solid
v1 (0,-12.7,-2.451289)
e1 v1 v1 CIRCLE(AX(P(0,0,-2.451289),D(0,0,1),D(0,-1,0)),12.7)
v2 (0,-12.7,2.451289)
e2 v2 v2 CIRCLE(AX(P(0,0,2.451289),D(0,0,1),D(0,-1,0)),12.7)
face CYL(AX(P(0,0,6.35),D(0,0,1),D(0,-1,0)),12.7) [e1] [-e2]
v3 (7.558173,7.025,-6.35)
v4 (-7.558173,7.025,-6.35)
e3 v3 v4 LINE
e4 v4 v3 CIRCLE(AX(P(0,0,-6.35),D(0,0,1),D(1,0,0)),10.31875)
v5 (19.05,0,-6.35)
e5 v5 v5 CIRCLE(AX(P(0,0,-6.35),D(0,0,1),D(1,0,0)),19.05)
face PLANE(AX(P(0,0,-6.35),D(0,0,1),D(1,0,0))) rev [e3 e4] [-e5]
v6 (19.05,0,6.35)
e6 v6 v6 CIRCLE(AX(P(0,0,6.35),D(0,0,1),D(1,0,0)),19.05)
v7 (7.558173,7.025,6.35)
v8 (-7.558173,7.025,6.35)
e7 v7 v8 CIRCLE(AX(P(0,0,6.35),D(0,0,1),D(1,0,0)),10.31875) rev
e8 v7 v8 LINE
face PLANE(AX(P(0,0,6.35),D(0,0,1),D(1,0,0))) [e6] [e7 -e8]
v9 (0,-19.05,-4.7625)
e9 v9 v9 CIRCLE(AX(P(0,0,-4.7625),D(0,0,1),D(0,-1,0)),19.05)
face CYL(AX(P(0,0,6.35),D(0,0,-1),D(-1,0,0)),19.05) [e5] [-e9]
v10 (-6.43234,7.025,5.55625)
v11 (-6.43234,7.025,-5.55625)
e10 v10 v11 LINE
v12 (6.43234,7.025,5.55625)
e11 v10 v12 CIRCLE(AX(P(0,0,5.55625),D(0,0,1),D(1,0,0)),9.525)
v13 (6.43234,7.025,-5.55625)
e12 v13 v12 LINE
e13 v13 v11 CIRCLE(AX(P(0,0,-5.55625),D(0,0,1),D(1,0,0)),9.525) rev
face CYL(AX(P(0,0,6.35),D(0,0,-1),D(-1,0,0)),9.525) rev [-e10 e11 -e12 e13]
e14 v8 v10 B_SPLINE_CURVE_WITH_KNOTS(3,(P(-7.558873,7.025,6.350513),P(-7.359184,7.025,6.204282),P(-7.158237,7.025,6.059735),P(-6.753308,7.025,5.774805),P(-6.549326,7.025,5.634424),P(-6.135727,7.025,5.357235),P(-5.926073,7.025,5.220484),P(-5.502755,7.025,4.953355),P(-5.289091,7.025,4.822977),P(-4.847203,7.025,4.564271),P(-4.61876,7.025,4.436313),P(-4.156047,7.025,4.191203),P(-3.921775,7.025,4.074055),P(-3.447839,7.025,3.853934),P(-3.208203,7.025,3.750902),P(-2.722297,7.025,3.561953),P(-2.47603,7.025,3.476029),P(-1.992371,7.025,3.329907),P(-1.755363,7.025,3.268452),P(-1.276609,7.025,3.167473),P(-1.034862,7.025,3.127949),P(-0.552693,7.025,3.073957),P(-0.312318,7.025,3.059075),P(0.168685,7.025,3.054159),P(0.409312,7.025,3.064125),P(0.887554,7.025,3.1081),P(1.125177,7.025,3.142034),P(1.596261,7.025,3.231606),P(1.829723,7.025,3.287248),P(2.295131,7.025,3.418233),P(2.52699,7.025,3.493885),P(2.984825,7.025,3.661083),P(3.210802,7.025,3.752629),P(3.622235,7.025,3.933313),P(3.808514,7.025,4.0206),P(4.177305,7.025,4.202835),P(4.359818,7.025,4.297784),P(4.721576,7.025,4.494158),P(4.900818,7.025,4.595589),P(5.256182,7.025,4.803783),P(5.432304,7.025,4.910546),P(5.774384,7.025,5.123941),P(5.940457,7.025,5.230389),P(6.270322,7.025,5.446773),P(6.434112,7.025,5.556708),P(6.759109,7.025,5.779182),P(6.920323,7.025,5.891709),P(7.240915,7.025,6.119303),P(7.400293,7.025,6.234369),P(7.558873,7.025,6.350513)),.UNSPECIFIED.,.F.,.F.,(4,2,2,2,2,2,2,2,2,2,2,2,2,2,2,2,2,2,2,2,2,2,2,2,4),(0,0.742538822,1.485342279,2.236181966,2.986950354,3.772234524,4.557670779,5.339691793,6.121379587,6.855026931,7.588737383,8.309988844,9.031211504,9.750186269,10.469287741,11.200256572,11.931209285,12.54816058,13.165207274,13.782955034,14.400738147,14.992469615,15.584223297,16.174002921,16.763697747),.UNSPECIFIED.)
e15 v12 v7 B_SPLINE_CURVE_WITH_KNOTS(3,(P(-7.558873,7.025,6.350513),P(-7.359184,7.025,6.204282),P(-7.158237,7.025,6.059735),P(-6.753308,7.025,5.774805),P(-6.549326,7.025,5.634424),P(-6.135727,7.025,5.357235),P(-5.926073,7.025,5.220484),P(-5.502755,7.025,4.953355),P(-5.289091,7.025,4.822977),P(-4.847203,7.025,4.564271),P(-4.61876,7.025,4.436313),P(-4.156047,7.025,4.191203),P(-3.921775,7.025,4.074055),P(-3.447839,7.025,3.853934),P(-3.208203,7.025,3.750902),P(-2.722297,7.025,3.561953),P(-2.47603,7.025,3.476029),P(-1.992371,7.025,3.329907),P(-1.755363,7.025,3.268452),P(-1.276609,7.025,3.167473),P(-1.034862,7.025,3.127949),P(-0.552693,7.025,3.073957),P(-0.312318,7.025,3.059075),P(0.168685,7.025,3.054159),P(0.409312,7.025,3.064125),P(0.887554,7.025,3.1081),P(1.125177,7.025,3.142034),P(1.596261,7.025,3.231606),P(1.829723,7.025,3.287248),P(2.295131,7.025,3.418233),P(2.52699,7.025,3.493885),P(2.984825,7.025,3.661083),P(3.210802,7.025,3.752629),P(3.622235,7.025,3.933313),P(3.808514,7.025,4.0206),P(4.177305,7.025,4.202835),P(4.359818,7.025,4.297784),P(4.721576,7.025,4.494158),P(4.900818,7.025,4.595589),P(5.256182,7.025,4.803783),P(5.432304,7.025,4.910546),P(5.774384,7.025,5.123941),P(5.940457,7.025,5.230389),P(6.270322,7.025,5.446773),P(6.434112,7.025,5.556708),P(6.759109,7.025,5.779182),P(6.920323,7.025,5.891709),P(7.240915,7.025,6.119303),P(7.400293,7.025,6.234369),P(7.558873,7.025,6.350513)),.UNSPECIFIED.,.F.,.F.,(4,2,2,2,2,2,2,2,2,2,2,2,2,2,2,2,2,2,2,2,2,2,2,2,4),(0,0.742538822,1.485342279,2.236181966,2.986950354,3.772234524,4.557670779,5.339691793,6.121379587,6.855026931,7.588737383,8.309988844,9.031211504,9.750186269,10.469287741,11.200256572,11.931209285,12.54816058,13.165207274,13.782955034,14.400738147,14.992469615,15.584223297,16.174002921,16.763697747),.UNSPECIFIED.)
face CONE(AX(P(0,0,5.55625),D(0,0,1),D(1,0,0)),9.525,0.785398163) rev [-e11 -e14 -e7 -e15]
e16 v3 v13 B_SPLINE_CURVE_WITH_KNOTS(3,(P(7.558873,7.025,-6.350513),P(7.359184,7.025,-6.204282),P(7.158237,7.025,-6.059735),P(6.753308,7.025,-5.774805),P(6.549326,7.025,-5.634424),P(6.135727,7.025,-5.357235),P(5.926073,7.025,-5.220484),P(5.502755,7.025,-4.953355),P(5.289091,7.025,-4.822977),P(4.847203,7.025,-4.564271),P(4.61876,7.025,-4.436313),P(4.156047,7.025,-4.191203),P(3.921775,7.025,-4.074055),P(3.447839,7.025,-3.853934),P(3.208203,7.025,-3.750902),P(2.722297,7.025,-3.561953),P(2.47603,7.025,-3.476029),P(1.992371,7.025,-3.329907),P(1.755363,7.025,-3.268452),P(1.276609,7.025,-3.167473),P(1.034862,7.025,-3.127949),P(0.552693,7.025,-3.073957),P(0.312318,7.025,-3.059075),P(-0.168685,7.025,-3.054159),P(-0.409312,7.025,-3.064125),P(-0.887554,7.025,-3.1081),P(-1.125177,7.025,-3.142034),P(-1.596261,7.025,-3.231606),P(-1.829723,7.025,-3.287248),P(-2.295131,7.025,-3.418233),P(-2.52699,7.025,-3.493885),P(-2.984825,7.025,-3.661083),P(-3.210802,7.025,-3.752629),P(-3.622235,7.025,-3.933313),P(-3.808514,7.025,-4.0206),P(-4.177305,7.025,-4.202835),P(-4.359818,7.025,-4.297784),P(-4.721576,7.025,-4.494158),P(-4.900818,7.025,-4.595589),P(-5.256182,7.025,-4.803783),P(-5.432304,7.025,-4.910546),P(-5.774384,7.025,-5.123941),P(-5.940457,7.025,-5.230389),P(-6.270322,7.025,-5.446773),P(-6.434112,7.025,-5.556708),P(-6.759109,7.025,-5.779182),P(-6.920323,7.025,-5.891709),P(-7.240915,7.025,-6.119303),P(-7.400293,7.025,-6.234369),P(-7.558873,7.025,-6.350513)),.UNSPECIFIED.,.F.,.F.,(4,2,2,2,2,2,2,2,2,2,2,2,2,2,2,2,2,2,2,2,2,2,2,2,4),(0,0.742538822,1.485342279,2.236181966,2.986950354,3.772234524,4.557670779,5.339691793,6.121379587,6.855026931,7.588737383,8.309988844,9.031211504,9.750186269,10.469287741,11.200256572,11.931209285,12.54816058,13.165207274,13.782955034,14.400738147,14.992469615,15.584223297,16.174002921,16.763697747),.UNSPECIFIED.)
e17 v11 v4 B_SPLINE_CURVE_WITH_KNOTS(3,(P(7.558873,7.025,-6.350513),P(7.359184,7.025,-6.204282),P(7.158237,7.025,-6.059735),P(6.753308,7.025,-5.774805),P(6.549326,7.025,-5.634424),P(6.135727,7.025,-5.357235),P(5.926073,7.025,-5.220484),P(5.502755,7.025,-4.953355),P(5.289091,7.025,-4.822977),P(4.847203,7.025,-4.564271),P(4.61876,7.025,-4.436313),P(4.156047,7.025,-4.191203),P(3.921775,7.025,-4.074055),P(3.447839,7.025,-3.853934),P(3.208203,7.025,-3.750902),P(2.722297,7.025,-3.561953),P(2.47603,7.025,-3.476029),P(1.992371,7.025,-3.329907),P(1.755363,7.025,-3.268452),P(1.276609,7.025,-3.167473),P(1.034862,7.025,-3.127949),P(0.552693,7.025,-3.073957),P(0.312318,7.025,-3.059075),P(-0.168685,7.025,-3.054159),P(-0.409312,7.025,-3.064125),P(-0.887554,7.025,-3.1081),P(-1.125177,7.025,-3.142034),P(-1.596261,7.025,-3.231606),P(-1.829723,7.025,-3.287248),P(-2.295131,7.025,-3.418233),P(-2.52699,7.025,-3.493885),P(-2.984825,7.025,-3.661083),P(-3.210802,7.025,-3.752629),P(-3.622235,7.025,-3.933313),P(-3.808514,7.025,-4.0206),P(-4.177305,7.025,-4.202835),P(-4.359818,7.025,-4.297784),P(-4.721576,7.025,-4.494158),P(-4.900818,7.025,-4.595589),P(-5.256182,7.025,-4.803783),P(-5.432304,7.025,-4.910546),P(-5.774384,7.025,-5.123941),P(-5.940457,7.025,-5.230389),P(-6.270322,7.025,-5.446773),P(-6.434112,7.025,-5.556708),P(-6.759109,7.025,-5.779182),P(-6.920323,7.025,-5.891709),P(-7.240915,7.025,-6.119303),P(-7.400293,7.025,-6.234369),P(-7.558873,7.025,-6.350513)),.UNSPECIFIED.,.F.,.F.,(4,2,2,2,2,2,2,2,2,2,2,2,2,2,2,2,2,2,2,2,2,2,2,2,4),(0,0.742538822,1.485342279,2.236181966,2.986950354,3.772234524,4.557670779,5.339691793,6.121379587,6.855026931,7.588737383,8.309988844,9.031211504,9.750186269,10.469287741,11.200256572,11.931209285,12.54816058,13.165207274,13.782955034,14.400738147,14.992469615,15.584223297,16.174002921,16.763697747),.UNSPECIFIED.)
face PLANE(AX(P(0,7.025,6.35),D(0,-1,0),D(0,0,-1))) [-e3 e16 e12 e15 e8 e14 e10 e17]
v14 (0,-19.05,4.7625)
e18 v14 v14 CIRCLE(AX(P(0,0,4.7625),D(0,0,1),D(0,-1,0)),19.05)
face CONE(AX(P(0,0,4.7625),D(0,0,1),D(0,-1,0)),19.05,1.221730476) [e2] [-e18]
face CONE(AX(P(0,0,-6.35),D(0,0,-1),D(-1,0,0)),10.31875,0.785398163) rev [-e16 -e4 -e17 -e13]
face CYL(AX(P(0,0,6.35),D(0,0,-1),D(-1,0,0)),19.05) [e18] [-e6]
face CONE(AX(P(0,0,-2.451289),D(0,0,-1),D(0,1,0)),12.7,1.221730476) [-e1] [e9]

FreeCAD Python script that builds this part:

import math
import FreeCAD as App
import Part
import Sketcher
from FreeCAD import Vector
Q = App.Units.Quantity


def edges_at(feature, points):
    """Names of the edges that pass closest to the given points."""
    edges = feature.Shape.Edges
    near = lambda p: min(range(len(edges)), key=lambda i: edges[i].distToShape(Part.Vertex(*p))[0])
    return sorted({f"Edge{near(p) + 1}" for p in points})

doc = App.newDocument("Part")
body = doc.addObject("PartDesign::Body", "Body")

# Sketch on XY plane
sketch1 = body.newObject("Sketcher::SketchObject", "Sketch")
sketch1.AttachmentSupport = (doc.getObject("XY_Plane"), [""])
sketch1.MapMode = "FlatFace"
sketch1.addGeometry(Part.Circle(Vector(0, 0, 0), Vector(0, 0, 1), 19.05), False)
sketch1.addGeometry(Part.Circle(Vector(0, 0, 0), Vector(0, 0, 1), 9.525), False)
sketch1.addConstraint(Sketcher.Constraint("Coincident", 0, 3, -1, 1))
sketch1.addConstraint(Sketcher.Constraint("Coincident", 1, 3, -1, 1))
sketch1.addConstraint(Sketcher.Constraint("Diameter", 0, Q("1.5 in")))
sketch1.addConstraint(Sketcher.Constraint("Diameter", 1, Q("0.75 in")))
pad1 = body.newObject("PartDesign::Pad", "Pad")
pad1.Profile = sketch1
pad1.Length = Q("0.5 in")
pad1.Midplane = True
doc.recompute()

chamfer = body.newObject("PartDesign::Chamfer", "Chamfer")
chamfer.Base = (pad1, edges_at(pad1, [(-9.525, 0, -6.35), (-9.525, 0, 6.35)]))
chamfer.Size = Q("0.03125 in")

# Sketch on YZ plane
sketch2 = body.newObject("Sketcher::SketchObject", "Sketch001")
sketch2.AttachmentSupport = (doc.getObject("YZ_Plane"), [""])
sketch2.MapMode = "FlatFace"
sketch2.addGeometry(Part.LineSegment(Vector(19.05, -4.7625, 0), Vector(19.05, 4.7625, 0)), False)
sketch2.addGeometry(Part.LineSegment(Vector(19.05, 4.7625, 0), Vector(12.7, 2.451289, 0)), False)
sketch2.addGeometry(Part.LineSegment(Vector(12.7, 2.451289, 0), Vector(12.7, -2.451289, 0)), False)
sketch2.addGeometry(Part.LineSegment(Vector(12.7, -2.451289, 0), Vector(19.05, -4.7625, 0)), False)
sketch2.addConstraint(Sketcher.Constraint("Coincident", 0, 2, 1, 1))
sketch2.addConstraint(Sketcher.Constraint("Coincident", 1, 2, 2, 1))
sketch2.addConstraint(Sketcher.Constraint("Coincident", 2, 2, 3, 1))
sketch2.addConstraint(Sketcher.Constraint("Coincident", 3, 2, 0, 1))
sketch2.addConstraint(Sketcher.Constraint("Vertical", 0))
sketch2.addConstraint(Sketcher.Constraint("Vertical", 2))
sketch2.addConstraint(Sketcher.Constraint("Equal", 1, 3))
sketch2.addConstraint(Sketcher.Constraint("Angle", 1, Q("-160 deg")))
sketch2.addConstraint(Sketcher.Constraint("DistanceX", -1, 1, 1, 2, Q("0.5 in")))
sketch2.addConstraint(Sketcher.Constraint("DistanceY", 0, 1, 0, 2, Q("0.375 in")))
sketch2.addConstraint(Sketcher.Constraint("DistanceX", -1, 1, 0, 2, Q("0.75 in")))
sketch2.addConstraint(Sketcher.Constraint("DistanceY", -1, 1, 0, 2, Q("0.1875 in")))
groove = body.newObject("PartDesign::Groove", "Groove")
groove.Profile = sketch2
groove.ReferenceAxis = (sketch2, ["V_Axis"])
groove.Angle = 360

# Sketch on XY plane
sketch3 = body.newObject("Sketcher::SketchObject", "Sketch002")
sketch3.AttachmentSupport = (doc.getObject("XY_Plane"), [""])
sketch3.MapMode = "FlatFace"
sketch3.AttachmentOffset = App.Placement(Vector(0, 0, -0.25 * 25.4), App.Rotation())
sketch3.addGeometry(Part.ArcOfCircle(Part.Circle(Vector(0, 0, 0), Vector(0, 0, 1), 10.31875), math.radians(42.906152), math.radians(137.093848)), False)
sketch3.addGeometry(Part.LineSegment(Vector(7.558173, 7.025, 0), Vector(-7.558173, 7.025, 0)), False)
sketch3.addConstraint(Sketcher.Constraint("Coincident", 0, 1, 1, 1))
sketch3.addConstraint(Sketcher.Constraint("Coincident", 1, 2, 0, 2))
sketch3.addConstraint(Sketcher.Constraint("Horizontal", 1))
sketch3.addConstraint(Sketcher.Constraint("Coincident", 0, 3, -1, 1))
sketch3.addConstraint(Sketcher.Constraint("Radius", 0, Q("0.40625 in")))
sketch3.addConstraint(Sketcher.Constraint("DistanceY", -1, 1, 0, 1, Q("7.025 mm")))
pad2 = body.newObject("PartDesign::Pad", "Pad001")
pad2.Profile = sketch3
pad2.Length = Q("0.5 in")

doc.recompute()
